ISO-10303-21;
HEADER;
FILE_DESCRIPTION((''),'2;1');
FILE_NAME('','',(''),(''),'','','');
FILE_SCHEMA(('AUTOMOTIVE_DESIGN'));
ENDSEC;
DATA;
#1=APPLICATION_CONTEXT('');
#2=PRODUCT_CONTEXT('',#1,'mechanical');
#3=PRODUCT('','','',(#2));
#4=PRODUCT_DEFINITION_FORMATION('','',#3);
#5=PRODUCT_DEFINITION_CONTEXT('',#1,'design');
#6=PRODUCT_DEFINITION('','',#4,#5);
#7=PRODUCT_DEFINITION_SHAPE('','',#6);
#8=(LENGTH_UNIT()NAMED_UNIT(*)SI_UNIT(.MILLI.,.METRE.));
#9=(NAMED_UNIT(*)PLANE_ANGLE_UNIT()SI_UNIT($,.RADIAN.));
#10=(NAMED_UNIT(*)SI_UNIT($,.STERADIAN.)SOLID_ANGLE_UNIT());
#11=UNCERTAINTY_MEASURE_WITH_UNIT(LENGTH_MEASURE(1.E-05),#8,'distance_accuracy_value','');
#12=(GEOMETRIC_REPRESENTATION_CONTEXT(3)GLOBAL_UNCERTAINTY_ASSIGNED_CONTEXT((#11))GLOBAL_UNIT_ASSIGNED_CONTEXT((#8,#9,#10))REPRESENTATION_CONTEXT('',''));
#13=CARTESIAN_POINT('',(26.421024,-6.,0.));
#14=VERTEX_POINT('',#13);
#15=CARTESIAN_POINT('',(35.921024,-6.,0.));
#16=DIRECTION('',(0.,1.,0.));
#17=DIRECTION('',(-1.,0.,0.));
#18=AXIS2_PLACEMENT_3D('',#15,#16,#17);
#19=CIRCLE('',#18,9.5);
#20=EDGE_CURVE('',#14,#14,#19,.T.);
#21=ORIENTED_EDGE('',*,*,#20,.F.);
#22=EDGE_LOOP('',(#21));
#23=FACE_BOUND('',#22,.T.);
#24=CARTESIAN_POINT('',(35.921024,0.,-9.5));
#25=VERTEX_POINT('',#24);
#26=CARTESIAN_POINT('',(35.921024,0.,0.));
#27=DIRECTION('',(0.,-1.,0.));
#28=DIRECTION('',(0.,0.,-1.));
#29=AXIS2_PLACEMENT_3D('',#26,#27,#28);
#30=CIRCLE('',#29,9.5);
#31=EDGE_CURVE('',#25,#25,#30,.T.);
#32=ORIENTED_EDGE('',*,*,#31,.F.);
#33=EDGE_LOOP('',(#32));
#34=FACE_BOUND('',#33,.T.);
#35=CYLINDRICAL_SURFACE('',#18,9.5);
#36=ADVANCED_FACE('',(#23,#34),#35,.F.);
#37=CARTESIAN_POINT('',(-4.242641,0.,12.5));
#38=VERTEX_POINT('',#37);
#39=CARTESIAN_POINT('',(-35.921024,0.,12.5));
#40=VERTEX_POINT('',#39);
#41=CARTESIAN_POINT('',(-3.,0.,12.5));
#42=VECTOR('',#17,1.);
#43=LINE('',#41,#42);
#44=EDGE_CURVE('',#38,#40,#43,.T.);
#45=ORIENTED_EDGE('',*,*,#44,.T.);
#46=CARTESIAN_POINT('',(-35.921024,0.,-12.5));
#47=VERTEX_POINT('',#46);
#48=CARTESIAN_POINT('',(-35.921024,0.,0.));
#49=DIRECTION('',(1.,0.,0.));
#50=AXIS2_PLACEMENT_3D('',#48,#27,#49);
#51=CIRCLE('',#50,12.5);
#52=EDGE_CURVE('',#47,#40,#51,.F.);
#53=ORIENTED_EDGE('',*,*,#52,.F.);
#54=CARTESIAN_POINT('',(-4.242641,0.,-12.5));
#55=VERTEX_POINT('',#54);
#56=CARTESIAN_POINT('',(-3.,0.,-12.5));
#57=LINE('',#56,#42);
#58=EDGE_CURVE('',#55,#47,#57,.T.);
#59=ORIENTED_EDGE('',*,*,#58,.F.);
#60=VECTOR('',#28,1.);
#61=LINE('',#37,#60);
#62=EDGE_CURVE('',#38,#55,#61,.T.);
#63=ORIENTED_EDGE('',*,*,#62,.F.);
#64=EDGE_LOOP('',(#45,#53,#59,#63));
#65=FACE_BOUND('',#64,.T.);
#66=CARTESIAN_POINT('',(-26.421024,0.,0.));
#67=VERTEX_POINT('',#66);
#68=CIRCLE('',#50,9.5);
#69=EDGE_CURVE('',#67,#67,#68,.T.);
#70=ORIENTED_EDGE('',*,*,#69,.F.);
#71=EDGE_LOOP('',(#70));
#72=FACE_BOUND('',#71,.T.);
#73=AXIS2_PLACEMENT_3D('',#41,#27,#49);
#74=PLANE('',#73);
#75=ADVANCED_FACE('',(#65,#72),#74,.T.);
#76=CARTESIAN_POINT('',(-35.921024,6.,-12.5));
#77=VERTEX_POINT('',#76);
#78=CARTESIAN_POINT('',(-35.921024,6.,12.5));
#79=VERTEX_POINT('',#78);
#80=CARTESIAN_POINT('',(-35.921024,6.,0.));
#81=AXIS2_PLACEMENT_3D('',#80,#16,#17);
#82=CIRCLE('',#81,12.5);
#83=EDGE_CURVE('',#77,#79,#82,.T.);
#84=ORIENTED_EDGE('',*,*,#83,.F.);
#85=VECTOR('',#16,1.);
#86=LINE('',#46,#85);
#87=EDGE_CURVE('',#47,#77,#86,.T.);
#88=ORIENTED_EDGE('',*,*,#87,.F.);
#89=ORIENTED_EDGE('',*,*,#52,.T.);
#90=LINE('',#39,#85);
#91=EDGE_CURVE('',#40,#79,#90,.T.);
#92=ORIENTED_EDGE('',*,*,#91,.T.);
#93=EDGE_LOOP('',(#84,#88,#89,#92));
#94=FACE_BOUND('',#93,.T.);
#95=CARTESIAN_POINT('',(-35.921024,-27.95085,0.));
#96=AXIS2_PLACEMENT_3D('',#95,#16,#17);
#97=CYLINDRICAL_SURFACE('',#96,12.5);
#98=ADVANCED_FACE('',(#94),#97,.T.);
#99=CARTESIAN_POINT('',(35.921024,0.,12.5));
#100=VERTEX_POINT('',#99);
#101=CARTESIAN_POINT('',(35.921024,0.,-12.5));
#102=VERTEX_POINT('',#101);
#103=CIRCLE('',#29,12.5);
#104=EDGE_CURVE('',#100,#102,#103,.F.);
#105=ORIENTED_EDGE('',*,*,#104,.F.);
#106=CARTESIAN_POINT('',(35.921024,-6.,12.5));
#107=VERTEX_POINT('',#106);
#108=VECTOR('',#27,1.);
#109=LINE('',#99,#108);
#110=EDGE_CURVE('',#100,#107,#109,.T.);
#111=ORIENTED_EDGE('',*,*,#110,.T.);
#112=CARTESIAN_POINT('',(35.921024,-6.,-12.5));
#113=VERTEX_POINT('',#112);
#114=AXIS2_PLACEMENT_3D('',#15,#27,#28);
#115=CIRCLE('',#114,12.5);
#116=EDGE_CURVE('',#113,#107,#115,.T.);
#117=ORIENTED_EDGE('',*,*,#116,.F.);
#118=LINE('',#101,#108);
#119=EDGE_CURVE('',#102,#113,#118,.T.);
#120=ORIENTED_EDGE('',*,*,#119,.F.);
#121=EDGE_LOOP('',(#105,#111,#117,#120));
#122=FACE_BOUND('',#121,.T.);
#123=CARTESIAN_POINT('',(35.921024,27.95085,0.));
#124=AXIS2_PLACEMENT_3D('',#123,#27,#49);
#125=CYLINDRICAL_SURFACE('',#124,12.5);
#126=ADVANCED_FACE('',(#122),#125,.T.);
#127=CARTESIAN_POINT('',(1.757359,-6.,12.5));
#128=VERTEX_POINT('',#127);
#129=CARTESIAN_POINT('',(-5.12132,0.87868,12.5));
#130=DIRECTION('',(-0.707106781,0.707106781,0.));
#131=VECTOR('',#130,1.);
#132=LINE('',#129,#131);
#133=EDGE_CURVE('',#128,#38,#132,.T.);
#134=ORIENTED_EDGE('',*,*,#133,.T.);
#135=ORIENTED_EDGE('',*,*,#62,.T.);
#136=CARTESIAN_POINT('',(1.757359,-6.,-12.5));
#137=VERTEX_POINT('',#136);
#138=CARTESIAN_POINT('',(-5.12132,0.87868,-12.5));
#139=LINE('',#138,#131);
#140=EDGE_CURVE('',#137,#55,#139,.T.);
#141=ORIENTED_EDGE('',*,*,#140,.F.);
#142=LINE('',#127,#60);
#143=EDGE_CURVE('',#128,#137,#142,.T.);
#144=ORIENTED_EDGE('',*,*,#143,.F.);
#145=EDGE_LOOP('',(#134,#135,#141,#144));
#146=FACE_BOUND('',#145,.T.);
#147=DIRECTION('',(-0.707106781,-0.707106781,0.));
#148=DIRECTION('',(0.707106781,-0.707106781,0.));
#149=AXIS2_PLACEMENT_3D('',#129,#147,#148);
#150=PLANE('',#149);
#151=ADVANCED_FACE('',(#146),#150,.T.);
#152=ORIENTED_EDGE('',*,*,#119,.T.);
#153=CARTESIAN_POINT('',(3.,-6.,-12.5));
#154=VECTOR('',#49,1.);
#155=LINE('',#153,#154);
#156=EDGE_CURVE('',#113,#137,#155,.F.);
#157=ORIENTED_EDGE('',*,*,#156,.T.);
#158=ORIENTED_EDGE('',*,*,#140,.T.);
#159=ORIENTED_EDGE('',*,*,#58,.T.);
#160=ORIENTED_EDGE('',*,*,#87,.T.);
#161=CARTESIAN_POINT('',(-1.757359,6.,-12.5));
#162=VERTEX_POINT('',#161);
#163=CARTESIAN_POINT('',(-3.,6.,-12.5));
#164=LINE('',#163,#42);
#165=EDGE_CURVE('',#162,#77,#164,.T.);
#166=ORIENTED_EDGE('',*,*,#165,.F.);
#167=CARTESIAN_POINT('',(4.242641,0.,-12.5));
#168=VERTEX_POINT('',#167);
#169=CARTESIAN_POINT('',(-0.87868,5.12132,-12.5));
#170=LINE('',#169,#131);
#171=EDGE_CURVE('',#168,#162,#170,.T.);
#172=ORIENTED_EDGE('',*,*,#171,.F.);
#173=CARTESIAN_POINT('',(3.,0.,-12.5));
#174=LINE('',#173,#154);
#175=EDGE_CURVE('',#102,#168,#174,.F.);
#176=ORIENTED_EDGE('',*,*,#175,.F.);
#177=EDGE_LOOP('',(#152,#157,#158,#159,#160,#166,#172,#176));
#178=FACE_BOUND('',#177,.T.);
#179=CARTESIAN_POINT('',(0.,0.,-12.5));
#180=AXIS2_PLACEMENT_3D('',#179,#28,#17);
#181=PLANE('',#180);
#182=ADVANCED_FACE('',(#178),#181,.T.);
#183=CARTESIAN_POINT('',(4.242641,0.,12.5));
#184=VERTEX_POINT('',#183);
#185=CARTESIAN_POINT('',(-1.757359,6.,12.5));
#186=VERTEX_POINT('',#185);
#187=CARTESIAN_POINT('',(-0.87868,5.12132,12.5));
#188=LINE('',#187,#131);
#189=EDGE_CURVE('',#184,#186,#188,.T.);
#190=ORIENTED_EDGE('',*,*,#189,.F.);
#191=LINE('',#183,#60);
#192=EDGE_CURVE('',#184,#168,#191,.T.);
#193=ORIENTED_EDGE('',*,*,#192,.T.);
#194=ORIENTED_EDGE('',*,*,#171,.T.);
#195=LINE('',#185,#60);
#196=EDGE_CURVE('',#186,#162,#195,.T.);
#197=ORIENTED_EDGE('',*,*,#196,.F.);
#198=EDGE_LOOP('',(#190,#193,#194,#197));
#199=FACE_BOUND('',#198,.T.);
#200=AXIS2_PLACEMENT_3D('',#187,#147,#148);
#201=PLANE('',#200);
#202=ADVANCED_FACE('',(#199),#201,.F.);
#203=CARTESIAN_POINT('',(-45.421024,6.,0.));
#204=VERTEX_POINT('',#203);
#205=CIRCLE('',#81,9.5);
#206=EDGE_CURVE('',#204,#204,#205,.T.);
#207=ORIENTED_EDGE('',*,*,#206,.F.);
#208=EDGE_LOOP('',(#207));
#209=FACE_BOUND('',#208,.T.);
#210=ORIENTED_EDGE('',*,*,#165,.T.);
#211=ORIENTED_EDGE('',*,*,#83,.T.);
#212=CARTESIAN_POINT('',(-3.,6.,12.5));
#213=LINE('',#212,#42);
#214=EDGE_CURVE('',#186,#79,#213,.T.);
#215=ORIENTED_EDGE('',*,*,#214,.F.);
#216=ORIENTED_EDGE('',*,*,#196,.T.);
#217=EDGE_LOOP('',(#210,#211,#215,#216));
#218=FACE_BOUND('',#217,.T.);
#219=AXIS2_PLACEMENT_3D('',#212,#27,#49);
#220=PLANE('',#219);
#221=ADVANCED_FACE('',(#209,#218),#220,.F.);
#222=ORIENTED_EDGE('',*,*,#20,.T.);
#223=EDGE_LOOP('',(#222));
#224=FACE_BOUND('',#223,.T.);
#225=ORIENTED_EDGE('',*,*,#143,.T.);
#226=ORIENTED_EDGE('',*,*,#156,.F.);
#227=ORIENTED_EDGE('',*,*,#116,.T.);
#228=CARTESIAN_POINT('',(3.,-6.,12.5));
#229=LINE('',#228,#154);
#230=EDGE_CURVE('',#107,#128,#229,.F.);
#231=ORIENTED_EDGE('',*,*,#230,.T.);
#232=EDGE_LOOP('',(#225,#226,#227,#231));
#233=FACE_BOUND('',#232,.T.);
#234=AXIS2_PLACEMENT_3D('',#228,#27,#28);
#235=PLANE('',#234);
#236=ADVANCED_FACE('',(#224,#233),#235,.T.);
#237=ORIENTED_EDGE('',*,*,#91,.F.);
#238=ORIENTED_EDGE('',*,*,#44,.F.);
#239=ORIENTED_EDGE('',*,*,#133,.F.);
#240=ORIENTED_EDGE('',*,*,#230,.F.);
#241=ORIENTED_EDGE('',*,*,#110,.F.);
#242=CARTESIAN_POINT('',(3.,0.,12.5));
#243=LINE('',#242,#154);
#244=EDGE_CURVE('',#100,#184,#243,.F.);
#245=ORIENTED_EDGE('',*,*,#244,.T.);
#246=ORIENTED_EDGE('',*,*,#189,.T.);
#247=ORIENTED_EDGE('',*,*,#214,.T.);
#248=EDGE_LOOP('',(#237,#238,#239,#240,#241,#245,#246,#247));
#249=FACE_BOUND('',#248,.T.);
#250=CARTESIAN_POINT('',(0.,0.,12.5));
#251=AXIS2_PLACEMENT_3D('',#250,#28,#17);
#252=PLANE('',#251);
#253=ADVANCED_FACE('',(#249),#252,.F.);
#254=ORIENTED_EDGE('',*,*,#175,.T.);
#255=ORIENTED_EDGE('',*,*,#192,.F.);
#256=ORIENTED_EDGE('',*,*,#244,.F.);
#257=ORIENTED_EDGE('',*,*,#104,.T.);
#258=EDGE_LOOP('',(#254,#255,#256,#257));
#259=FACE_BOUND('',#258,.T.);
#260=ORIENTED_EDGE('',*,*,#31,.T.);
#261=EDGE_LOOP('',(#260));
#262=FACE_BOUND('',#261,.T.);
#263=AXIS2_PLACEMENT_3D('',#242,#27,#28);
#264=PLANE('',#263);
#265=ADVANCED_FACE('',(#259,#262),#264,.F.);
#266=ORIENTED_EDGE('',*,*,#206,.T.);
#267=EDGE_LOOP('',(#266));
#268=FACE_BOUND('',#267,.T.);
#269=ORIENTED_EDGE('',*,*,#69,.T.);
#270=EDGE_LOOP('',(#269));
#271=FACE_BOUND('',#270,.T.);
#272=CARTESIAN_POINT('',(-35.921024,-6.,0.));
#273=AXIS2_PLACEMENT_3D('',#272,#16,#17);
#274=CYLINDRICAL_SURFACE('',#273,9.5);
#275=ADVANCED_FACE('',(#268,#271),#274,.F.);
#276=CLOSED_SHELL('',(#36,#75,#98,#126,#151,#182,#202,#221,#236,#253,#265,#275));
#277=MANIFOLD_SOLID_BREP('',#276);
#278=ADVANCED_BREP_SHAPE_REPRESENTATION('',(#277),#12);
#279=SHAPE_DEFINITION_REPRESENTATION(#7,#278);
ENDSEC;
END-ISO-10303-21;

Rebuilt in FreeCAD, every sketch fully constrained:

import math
import FreeCAD as App
import Part
import Sketcher
from FreeCAD import Vector
Q = App.Units.Quantity


def add_polygon(sketch, points):
    """Adds a closed chain of lines whose ends are joined by coincident constraints."""
    first, n = sketch.GeometryCount, len(points)
    for a, b in zip(points, points[1:] + points[:1]):
        sketch.addGeometry(Part.LineSegment(App.Vector(*a, 0), App.Vector(*b, 0)), False)
    for i in range(n):
        sketch.addConstraint(Sketcher.Constraint("Coincident", first + i, 2, first + (i + 1) % n, 1))

doc = App.newDocument("Part")
body = doc.addObject("PartDesign::Body", "Body")

sketch1 = doc.addObject("Sketcher::SketchObject", "Sketch")
body.addObject(sketch1)
sketch1.AttachmentSupport = (doc.XY_Plane, [""])
sketch1.MapMode = "FlatFace"
add_polygon(sketch1, [(-36, 0), (-4, 0), (2, -6), (36, -6), (36, 0), (4, 0), (-2, 6), (-36, 6)])
sketch1.addConstraint([
    Sketcher.Constraint("Horizontal", 0),
    Sketcher.Constraint("Horizontal", 2),
    Sketcher.Constraint("Vertical", 3),
    Sketcher.Constraint("Horizontal", 4),
    Sketcher.Constraint("Horizontal", 6),
    Sketcher.Constraint("Vertical", 7),
    Sketcher.Constraint("Symmetric", 0, 2, 4, 2, -1, 1),
    Sketcher.Constraint("Symmetric", 1, 2, 5, 2, -1, 1),
    Sketcher.Constraint("Symmetric", 3, 2, 7, 2, -2),
    Sketcher.Constraint("DistanceY", 3, 1, 3, 2, 6.0),
    Sketcher.Constraint("Angle", 1, Q("-45 deg")),
    Sketcher.Constraint("DistanceX", 0, 1, 0, 2, 31.678384),
    Sketcher.Constraint("DistanceX", 2, 1, 2, 2, 34.163665),
])
pad1 = doc.addObject("PartDesign::Pad", "Pad")
body.addObject(pad1)
pad1.Profile = sketch1
pad1.Length = 25
pad1.Midplane = True

sketch2 = doc.addObject("Sketcher::SketchObject", "Sketch001")
body.addObject(sketch2)
sketch2.AttachmentSupport = (doc.XZ_Plane, [""])
sketch2.MapMode = "FlatFace"
sketch2.AttachmentOffset = App.Placement(Vector(0, 0, -6), App.Rotation())
sketch2.addGeometry([
    Part.ArcOfCircle(Part.Circle(Vector(-36, 0, 0), Vector(0, 0, 1), 12), math.radians(90), math.radians(270)),
    Part.LineSegment(Vector(-36, 12, 0), Vector(-36, -12, 0)),
], False)
sketch2.addConstraint([
    Sketcher.Constraint("Coincident", 0, 1, 1, 1),
    Sketcher.Constraint("Coincident", 1, 2, 0, 2),
    Sketcher.Constraint("Vertical", 1),
    Sketcher.Constraint("PointOnObject", 0, 3, -1),
    Sketcher.Constraint("Radius", 0, 12.5),
    Sketcher.Constraint("DistanceX", 0, 3, -1, 1, 35.921024),
    Sketcher.Constraint("DistanceX", 0, 1, -1, 1, 35.921024),
])
pad2 = doc.addObject("PartDesign::Pad", "Pad001")
body.addObject(pad2)
pad2.Profile = sketch2
pad2.Length = 6

sketch3 = doc.addObject("Sketcher::SketchObject", "Sketch002")
body.addObject(sketch3)
sketch3.AttachmentSupport = (doc.XZ_Plane, [""])
sketch3.MapMode = "FlatFace"
sketch3.AttachmentOffset = App.Placement(Vector(0, 0, 6), App.Rotation())
sketch3.addGeometry([
    Part.LineSegment(Vector(36, -12, 0), Vector(36, 12, 0)),
    Part.ArcOfCircle(Part.Circle(Vector(36, 0, 0), Vector(0, 0, 1), 12), math.radians(-90), math.radians(90)),
], False)
sketch3.addConstraint([
    Sketcher.Constraint("Coincident", 0, 1, 1, 1),
    Sketcher.Constraint("Coincident", 1, 2, 0, 2),
    Sketcher.Constraint("Vertical", 0),
    Sketcher.Constraint("PointOnObject", 1, 3, -1),
    Sketcher.Constraint("Vertical", 1, 3, 0, 1),
    Sketcher.Constraint("Radius", 1, 12.5),
    Sketcher.Constraint("DistanceX", -1, 1, 1, 3, 35.921024),
])
pad3 = doc.addObject("PartDesign::Pad", "Pad002")
body.addObject(pad3)
pad3.Profile = sketch3
pad3.Length = 6
pad3.Reversed = True

sketch4 = doc.addObject("Sketcher::SketchObject", "Sketch003")
body.addObject(sketch4)
sketch4.AttachmentSupport = (doc.XZ_Plane, [""])
sketch4.MapMode = "FlatFace"
sketch4.AttachmentOffset = App.Placement(Vector(0, 0, -6), App.Rotation())
sketch4.addGeometry([
    Part.Circle(Vector(-36, 0, 0), Vector(0, 0, 1), 10),
    Part.Circle(Vector(36, 0, 0), Vector(0, 0, 1), 10),
], False)
sketch4.addConstraint([
    Sketcher.Constraint("Equal", 0, 1),
    Sketcher.Constraint("Symmetric", 0, 3, 1, 3, -1, 1),
    Sketcher.Constraint("PointOnObject", 0, 3, -1),
    Sketcher.Constraint("Diameter", 0, 19.0),
    Sketcher.Constraint("DistanceX", 0, 3, 1, 3, 71.842049),
])
pocket1 = doc.addObject("PartDesign::Pocket", "Pocket")
body.addObject(pocket1)
pocket1.Profile = sketch4
pocket1.Type = "ThroughAll"
pocket1.Reversed = True

doc.recompute()
